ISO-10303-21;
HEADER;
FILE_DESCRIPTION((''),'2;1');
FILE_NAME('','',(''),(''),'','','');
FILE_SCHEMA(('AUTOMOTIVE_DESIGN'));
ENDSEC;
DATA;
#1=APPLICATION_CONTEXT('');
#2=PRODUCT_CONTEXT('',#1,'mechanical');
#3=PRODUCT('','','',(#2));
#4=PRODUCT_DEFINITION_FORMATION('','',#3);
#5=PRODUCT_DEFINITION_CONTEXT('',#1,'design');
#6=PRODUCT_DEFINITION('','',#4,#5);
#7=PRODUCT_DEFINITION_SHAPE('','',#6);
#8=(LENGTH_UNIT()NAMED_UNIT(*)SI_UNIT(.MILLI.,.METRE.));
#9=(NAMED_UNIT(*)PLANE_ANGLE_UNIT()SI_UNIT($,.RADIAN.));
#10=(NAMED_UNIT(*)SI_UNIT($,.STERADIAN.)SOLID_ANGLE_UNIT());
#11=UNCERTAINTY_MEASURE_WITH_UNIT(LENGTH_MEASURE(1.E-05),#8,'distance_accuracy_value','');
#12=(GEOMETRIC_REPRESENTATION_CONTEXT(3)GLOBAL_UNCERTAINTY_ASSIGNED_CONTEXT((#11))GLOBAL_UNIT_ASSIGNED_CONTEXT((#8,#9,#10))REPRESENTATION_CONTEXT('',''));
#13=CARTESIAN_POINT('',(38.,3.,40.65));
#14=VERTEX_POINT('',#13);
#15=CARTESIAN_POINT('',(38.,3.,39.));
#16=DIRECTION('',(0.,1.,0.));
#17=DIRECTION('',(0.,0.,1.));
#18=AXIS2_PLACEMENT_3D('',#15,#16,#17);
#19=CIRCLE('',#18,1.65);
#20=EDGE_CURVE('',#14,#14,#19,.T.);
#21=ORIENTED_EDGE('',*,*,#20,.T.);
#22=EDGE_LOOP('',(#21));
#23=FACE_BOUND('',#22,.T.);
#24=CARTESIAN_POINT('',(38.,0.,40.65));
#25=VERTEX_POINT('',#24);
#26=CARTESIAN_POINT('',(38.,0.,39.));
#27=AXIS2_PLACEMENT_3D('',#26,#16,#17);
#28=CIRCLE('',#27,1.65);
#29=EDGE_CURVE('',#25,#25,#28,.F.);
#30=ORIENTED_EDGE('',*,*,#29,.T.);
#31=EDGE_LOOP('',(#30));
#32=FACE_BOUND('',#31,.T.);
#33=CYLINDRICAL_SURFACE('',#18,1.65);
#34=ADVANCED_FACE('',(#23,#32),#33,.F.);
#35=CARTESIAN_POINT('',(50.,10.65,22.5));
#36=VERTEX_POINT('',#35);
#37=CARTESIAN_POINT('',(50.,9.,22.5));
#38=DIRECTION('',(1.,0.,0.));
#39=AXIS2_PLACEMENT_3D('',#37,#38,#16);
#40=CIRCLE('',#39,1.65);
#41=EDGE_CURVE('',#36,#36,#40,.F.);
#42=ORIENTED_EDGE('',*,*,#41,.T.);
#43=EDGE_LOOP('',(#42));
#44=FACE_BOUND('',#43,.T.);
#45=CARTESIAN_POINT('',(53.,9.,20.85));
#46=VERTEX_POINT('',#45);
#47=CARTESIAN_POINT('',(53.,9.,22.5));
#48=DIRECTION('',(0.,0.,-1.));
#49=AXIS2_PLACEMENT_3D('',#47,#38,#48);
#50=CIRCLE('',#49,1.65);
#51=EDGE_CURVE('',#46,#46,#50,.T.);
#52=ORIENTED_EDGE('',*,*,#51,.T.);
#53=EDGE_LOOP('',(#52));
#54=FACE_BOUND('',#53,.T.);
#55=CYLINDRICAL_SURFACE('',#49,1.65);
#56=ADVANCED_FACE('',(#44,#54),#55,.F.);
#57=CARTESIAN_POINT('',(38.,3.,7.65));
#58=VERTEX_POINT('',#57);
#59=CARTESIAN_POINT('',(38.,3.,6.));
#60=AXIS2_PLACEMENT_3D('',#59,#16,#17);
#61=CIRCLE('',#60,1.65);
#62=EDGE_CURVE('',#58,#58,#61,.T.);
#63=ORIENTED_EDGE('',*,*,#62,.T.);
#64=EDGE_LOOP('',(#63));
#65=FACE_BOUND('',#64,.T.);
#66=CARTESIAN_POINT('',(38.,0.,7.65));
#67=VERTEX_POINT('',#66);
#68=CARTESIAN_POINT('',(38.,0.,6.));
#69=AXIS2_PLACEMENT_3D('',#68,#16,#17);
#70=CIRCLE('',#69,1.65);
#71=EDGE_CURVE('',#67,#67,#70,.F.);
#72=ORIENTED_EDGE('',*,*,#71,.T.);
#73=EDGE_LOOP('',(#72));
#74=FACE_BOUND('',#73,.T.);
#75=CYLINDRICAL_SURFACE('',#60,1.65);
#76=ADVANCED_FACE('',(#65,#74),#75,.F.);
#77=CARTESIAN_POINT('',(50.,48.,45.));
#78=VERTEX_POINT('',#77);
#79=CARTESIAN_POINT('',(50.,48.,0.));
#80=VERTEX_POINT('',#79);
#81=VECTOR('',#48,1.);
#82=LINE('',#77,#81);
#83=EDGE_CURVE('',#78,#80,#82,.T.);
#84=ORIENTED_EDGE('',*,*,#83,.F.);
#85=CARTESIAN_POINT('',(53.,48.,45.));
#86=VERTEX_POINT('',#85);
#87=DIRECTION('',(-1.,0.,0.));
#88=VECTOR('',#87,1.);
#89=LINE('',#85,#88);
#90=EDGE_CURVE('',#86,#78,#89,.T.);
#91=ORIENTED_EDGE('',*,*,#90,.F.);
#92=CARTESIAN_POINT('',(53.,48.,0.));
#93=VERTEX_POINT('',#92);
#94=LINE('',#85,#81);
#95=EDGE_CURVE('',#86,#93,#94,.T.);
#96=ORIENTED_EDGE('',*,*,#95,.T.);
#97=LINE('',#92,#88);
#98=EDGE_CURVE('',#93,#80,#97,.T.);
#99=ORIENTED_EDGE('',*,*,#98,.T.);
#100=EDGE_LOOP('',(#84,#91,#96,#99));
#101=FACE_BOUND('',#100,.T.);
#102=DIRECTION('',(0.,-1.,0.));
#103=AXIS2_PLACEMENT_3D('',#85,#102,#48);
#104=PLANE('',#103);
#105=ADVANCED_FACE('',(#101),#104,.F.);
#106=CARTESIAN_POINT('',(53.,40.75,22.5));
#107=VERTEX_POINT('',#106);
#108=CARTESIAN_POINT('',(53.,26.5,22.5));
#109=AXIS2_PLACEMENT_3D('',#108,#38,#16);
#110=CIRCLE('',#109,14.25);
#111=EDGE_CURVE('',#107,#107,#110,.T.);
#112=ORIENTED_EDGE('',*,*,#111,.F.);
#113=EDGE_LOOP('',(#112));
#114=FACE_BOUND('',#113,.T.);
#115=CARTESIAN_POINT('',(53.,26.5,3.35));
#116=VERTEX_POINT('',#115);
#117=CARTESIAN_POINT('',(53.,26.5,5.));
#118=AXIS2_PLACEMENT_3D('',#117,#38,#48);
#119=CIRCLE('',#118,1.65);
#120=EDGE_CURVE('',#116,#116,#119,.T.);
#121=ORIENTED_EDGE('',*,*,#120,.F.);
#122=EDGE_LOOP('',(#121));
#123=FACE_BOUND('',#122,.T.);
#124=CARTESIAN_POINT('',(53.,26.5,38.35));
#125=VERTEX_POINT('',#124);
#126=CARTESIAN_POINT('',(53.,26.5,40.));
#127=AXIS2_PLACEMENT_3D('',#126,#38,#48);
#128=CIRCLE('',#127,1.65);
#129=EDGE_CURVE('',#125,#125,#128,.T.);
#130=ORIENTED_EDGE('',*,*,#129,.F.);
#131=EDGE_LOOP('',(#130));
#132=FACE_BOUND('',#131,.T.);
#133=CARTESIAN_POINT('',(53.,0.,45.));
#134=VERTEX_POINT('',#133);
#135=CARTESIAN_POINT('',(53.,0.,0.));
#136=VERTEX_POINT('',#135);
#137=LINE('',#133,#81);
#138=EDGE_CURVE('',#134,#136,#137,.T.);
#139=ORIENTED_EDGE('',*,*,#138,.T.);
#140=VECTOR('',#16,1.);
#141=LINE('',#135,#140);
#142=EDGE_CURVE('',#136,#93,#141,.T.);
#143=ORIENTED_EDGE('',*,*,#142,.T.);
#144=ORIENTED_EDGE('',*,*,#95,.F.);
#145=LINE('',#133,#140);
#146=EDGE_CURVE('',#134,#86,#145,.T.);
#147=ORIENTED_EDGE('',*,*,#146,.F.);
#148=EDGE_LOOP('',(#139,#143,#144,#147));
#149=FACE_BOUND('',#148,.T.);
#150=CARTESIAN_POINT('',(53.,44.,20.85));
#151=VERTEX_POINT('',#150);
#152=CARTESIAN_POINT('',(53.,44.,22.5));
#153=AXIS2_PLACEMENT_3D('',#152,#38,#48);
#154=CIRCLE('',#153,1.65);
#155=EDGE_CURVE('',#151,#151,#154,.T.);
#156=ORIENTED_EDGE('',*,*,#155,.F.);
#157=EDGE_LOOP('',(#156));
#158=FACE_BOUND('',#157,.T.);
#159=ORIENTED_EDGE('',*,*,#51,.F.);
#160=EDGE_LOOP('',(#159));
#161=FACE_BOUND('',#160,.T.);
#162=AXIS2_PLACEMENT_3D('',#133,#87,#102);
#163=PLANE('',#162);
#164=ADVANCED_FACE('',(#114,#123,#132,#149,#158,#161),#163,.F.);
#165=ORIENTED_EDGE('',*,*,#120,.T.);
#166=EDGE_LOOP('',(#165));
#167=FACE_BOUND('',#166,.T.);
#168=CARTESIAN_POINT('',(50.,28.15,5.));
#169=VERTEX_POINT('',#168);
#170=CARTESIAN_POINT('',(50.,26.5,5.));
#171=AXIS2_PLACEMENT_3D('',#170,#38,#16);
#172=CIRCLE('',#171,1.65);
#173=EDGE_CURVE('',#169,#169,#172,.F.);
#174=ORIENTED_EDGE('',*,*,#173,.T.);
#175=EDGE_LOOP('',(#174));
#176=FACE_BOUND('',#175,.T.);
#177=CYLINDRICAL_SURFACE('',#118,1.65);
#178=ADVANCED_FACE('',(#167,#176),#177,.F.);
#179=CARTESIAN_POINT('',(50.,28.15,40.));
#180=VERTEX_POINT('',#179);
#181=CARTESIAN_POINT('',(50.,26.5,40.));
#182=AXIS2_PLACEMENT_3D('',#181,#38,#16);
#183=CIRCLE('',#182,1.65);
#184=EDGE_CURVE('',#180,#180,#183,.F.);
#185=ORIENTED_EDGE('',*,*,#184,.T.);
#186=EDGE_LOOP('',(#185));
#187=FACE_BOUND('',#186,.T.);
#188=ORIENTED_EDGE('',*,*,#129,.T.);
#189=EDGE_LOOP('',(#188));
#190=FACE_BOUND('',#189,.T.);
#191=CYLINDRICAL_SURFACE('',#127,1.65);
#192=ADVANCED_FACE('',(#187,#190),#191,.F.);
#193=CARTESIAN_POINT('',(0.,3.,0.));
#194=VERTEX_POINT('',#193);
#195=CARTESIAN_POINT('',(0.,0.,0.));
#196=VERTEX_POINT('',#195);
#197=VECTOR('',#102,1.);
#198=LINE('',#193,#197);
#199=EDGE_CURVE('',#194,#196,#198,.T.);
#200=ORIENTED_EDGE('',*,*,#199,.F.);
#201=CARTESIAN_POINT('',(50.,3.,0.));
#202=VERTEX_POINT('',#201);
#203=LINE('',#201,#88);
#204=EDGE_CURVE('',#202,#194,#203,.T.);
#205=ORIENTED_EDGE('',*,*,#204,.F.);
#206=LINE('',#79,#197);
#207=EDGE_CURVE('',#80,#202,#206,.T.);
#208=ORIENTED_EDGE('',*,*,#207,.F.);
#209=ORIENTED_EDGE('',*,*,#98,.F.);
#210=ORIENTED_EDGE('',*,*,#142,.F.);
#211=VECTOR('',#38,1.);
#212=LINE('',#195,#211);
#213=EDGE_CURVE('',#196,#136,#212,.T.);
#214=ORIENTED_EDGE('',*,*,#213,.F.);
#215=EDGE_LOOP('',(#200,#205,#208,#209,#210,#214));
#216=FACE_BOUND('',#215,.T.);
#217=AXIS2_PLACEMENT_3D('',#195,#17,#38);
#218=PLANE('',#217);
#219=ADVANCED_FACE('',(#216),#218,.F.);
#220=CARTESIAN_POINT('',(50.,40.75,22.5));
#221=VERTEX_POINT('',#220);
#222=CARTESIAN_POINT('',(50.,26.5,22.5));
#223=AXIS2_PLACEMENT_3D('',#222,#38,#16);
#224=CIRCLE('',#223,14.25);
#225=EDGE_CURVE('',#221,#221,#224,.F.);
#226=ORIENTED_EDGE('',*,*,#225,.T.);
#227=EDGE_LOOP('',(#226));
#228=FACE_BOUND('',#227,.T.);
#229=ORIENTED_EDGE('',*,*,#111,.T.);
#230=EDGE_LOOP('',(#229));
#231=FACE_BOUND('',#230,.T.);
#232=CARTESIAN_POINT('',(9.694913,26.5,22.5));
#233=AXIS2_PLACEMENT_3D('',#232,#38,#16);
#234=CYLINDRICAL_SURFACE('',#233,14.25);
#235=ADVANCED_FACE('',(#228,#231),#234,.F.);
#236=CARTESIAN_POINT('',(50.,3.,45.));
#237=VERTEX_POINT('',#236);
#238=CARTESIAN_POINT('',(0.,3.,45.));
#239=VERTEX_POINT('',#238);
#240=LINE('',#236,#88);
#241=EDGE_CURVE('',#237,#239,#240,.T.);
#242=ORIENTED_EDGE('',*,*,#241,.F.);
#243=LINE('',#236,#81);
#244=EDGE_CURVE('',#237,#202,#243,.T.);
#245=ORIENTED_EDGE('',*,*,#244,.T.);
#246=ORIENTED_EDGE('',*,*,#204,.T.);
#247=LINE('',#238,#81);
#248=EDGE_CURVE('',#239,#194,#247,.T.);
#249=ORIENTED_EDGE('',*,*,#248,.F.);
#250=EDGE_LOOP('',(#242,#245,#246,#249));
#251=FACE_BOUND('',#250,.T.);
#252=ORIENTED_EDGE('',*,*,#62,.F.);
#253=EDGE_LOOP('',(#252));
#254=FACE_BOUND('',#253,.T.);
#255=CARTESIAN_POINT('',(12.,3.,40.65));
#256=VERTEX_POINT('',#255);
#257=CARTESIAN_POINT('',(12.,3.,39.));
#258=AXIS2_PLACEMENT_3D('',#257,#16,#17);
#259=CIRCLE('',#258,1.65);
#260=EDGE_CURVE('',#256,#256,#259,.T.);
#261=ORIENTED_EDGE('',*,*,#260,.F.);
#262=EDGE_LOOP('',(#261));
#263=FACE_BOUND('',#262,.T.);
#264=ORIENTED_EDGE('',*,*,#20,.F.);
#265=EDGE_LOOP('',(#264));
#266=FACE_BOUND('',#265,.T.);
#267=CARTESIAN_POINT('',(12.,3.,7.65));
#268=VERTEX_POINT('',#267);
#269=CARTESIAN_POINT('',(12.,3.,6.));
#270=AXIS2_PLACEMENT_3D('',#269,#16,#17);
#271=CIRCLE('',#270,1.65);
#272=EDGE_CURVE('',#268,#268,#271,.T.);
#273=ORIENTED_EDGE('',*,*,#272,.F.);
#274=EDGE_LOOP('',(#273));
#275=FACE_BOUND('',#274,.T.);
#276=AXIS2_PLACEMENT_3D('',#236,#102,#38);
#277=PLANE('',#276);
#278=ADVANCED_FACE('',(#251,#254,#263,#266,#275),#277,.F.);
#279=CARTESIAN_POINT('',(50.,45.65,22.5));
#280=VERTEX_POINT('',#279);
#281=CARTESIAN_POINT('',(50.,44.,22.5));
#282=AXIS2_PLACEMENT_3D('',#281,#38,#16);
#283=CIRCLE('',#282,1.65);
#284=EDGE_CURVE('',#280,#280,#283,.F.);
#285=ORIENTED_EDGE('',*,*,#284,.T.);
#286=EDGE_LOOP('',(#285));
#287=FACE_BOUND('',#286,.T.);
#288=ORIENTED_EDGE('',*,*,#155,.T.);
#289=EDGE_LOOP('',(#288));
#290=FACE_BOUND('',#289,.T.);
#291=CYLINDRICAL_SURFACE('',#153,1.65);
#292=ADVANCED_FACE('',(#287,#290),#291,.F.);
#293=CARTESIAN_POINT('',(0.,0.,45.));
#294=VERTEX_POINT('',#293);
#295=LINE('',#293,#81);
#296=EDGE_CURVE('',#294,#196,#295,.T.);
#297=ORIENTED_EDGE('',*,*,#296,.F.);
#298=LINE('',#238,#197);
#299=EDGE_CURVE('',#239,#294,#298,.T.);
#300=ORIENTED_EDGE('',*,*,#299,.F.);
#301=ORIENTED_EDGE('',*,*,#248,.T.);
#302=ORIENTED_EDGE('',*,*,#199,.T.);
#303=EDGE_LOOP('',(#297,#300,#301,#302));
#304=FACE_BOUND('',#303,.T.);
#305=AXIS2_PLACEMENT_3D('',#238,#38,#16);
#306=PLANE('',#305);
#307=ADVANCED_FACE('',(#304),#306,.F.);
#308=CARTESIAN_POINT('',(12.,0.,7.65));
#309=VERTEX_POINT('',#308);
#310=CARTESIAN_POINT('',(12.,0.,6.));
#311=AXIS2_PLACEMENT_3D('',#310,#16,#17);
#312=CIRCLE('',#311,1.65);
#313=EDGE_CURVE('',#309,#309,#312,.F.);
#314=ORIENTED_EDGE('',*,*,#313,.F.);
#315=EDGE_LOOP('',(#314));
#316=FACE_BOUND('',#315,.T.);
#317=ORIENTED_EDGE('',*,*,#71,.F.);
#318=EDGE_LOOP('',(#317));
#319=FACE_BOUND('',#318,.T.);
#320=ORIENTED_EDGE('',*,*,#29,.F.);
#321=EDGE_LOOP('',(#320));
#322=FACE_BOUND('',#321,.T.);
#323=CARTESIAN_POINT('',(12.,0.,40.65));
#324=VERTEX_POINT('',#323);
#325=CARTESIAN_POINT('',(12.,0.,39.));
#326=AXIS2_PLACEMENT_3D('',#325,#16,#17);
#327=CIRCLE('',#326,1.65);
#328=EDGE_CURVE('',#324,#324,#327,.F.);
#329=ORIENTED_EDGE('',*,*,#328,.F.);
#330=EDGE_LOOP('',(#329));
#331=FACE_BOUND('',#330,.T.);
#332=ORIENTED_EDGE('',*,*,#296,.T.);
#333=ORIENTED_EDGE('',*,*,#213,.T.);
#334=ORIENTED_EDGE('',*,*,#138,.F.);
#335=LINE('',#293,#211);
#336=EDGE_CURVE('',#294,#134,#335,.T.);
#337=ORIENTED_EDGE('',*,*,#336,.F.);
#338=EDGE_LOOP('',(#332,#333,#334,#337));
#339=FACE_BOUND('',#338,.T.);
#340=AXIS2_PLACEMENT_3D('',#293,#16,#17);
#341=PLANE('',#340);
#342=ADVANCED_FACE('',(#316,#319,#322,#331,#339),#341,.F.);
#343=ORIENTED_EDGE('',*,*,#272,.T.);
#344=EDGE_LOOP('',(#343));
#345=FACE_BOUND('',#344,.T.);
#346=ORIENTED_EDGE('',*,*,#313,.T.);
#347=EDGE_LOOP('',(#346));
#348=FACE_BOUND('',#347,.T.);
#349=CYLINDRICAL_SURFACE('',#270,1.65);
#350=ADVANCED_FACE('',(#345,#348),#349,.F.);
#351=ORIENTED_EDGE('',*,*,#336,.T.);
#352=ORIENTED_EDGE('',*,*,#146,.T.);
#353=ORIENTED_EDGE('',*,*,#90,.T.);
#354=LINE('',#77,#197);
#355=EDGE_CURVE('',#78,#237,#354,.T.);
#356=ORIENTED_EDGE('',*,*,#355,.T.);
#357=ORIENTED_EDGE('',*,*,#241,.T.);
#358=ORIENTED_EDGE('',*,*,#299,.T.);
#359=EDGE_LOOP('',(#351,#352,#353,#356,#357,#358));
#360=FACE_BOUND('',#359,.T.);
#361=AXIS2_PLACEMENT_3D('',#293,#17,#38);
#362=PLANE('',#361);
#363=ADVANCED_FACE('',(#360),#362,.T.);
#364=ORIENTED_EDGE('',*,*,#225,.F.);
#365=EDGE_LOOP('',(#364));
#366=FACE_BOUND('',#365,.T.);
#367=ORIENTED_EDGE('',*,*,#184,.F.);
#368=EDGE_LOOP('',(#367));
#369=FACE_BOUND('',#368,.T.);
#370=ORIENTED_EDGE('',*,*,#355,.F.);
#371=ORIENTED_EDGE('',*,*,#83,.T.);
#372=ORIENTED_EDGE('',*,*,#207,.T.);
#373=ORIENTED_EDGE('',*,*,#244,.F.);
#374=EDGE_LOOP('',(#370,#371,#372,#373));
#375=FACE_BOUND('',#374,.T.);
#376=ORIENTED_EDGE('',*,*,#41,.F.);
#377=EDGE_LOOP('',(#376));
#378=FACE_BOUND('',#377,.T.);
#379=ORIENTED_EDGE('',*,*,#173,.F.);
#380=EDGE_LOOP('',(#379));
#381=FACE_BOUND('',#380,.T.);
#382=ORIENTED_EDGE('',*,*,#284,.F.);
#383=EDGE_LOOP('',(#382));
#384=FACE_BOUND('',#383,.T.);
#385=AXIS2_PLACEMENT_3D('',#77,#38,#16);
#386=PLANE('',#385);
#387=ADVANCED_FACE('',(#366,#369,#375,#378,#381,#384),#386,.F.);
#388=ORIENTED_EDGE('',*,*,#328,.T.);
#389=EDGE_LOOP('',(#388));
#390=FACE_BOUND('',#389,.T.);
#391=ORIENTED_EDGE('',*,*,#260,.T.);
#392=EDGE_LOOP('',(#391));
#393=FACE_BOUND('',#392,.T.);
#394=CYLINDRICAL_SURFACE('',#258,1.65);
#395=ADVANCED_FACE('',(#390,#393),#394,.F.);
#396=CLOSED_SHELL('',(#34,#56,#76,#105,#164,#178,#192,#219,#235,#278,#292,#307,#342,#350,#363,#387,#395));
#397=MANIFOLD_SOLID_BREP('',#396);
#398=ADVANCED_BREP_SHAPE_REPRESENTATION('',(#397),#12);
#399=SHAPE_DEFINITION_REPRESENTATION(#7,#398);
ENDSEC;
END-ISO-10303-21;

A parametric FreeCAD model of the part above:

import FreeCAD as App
import Part
import Sketcher

V = App.Vector
Q = App.Units.Quantity


def add_polygon(sketch, points):
    """Adds a closed chain of lines whose ends are joined by coincident constraints."""
    first, n = sketch.GeometryCount, len(points)
    for a, b in zip(points, points[1:] + points[:1]):
        sketch.addGeometry(Part.LineSegment(App.Vector(*a, 0), App.Vector(*b, 0)), False)
    for i in range(n):
        sketch.addConstraint(Sketcher.Constraint("Coincident", first + i, 2, first + (i + 1) % n, 1))

doc = App.newDocument("Part")
body = doc.addObject("PartDesign::Body", "Body")

# Sketch on XY plane
sketch1 = doc.addObject("Sketcher::SketchObject", "Sketch")
body.addObject(sketch1)
sketch1.AttachmentSupport = (doc.XY_Plane, [""])
sketch1.MapMode = "FlatFace"
add_polygon(sketch1, [(0, 0), (53, 0), (53, 48), (50, 48), (50, 3), (0, 3)])  # lines 0-5
sketch1.addConstraint([
    Sketcher.Constraint("Horizontal", 0),
    Sketcher.Constraint("Vertical", 1),
    Sketcher.Constraint("Horizontal", 2),
    Sketcher.Constraint("Vertical", 3),
    Sketcher.Constraint("Horizontal", 4),
    Sketcher.Constraint("Vertical", 5),
    Sketcher.Constraint("Coincident", 5, 2, -1, 1),
    Sketcher.Constraint("Equal", 2, 5),
    Sketcher.Constraint("DistanceX", 0, 1, 0, 2, Q("53 mm")),
    Sketcher.Constraint("DistanceX", 2, 2, 2, 1, Q("3 mm")),
    Sketcher.Constraint("DistanceY", 1, 1, 1, 2, Q("48 mm")),
])
pad1 = doc.addObject("PartDesign::Pad", "Pad")
body.addObject(pad1)
pad1.Profile = sketch1
pad1.Length = 45

# Sketch on XZ plane
sketch2 = doc.addObject("Sketcher::SketchObject", "Sketch001")
body.addObject(sketch2)
sketch2.AttachmentSupport = (doc.XZ_Plane, [""])
sketch2.MapMode = "FlatFace"
sketch2.AttachmentOffset = App.Placement(V(0, 0, -3), App.Rotation())
sketch2.addGeometry([
    Part.Circle(V(38, 39, 0), V(0, 0, 1), 1.6),
    Part.Circle(V(12, 39, 0), V(0, 0, 1), 1.6),
    Part.Circle(V(12, 6, 0), V(0, 0, 1), 1.6),
    Part.Circle(V(38, 6, 0), V(0, 0, 1), 1.6),
], False)
sketch2.addConstraint([
    Sketcher.Constraint("Equal", 0, 1),
    Sketcher.Constraint("Equal", 1, 2),
    Sketcher.Constraint("Equal", 2, 3),
    Sketcher.Constraint("Horizontal", 0, 3, 1, 3),
    Sketcher.Constraint("Horizontal", 2, 3, 3, 3),
    Sketcher.Constraint("Vertical", 1, 3, 2, 3),
    Sketcher.Constraint("Vertical", 0, 3, 3, 3),
    Sketcher.Constraint("Diameter", 0, Q("3.3 mm")),
    Sketcher.Constraint("DistanceX", -1, 1, 0, 3, Q("38 mm")),
    Sketcher.Constraint("DistanceY", -1, 1, 0, 3, Q("39 mm")),
    Sketcher.Constraint("DistanceX", -1, 1, 1, 3, Q("12 mm")),
    Sketcher.Constraint("DistanceY", -1, 1, 2, 3, Q("6 mm")),
])
doc.recompute()
hole = doc.addObject("PartDesign::Hole", "Hole")
body.addObject(hole)
hole.Profile = sketch2
hole.ThreadType = "None"
hole.Diameter = 3.3
hole.DepthType = "ThroughAll"
hole.Reversed = True

# Sketch on YZ plane
sketch3 = doc.addObject("Sketcher::SketchObject", "Sketch002")
body.addObject(sketch3)
sketch3.AttachmentSupport = (doc.YZ_Plane, [""])
sketch3.MapMode = "FlatFace"
sketch3.AttachmentOffset = App.Placement(V(0, 0, 53), App.Rotation())
sketch3.addGeometry([
    Part.Circle(V(44, 22.5, 0), V(0, 0, 1), 1.6),
    Part.Circle(V(26.5, 5, 0), V(0, 0, 1), 1.6),
    Part.Circle(V(9, 22.5, 0), V(0, 0, 1), 1.6),
    Part.Circle(V(26.5, 40, 0), V(0, 0, 1), 1.6),
], False)
sketch3.addConstraint([
    Sketcher.Constraint("Equal", 0, 1),
    Sketcher.Constraint("Equal", 1, 2),
    Sketcher.Constraint("Equal", 2, 3),
    Sketcher.Constraint("Horizontal", 0, 3, 2, 3),
    Sketcher.Constraint("Vertical", 1, 3, 3, 3),
    Sketcher.Constraint("Diameter", 0, Q("3.3 mm")),
    Sketcher.Constraint("DistanceX", -1, 1, 0, 3, Q("44 mm")),
    Sketcher.Constraint("DistanceY", -1, 1, 1, 3, Q("5 mm")),
    Sketcher.Constraint("DistanceX", -1, 1, 2, 3, Q("9 mm")),
    Sketcher.Constraint("DistanceY", -1, 1, 3, 3, Q("40 mm")),
    Sketcher.Constraint("DistanceY", -1, 1, 0, 3, Q("22.5 mm")),
    Sketcher.Constraint("DistanceX", -1, 1, 1, 3, Q("26.5 mm")),
])
doc.recompute()
hole2 = doc.addObject("PartDesign::Hole", "Hole001")
body.addObject(hole2)
hole2.Profile = sketch3
hole2.ThreadType = "None"
hole2.Diameter = 3.3
hole2.DepthType = "ThroughAll"

# Sketch on YZ plane
sketch4 = doc.addObject("Sketcher::SketchObject", "Sketch003")
body.addObject(sketch4)
sketch4.AttachmentSupport = (doc.YZ_Plane, [""])
sketch4.MapMode = "FlatFace"
sketch4.AttachmentOffset = App.Placement(V(0, 0, 53), App.Rotation())
sketch4.addGeometry(Part.Circle(V(26, 22, 0), V(0, 0, 1), 14), False)
sketch4.addConstraint([
    Sketcher.Constraint("Diameter", 0, Q("28.5 mm")),
    Sketcher.Constraint("DistanceX", -1, 1, 0, 3, Q("26.5 mm")),
    Sketcher.Constraint("DistanceY", -1, 1, 0, 3, Q("22.5 mm")),
])
pocket1 = doc.addObject("PartDesign::Pocket", "Pocket")
body.addObject(pocket1)
pocket1.Profile = sketch4
pocket1.Length = 3

doc.recompute()
